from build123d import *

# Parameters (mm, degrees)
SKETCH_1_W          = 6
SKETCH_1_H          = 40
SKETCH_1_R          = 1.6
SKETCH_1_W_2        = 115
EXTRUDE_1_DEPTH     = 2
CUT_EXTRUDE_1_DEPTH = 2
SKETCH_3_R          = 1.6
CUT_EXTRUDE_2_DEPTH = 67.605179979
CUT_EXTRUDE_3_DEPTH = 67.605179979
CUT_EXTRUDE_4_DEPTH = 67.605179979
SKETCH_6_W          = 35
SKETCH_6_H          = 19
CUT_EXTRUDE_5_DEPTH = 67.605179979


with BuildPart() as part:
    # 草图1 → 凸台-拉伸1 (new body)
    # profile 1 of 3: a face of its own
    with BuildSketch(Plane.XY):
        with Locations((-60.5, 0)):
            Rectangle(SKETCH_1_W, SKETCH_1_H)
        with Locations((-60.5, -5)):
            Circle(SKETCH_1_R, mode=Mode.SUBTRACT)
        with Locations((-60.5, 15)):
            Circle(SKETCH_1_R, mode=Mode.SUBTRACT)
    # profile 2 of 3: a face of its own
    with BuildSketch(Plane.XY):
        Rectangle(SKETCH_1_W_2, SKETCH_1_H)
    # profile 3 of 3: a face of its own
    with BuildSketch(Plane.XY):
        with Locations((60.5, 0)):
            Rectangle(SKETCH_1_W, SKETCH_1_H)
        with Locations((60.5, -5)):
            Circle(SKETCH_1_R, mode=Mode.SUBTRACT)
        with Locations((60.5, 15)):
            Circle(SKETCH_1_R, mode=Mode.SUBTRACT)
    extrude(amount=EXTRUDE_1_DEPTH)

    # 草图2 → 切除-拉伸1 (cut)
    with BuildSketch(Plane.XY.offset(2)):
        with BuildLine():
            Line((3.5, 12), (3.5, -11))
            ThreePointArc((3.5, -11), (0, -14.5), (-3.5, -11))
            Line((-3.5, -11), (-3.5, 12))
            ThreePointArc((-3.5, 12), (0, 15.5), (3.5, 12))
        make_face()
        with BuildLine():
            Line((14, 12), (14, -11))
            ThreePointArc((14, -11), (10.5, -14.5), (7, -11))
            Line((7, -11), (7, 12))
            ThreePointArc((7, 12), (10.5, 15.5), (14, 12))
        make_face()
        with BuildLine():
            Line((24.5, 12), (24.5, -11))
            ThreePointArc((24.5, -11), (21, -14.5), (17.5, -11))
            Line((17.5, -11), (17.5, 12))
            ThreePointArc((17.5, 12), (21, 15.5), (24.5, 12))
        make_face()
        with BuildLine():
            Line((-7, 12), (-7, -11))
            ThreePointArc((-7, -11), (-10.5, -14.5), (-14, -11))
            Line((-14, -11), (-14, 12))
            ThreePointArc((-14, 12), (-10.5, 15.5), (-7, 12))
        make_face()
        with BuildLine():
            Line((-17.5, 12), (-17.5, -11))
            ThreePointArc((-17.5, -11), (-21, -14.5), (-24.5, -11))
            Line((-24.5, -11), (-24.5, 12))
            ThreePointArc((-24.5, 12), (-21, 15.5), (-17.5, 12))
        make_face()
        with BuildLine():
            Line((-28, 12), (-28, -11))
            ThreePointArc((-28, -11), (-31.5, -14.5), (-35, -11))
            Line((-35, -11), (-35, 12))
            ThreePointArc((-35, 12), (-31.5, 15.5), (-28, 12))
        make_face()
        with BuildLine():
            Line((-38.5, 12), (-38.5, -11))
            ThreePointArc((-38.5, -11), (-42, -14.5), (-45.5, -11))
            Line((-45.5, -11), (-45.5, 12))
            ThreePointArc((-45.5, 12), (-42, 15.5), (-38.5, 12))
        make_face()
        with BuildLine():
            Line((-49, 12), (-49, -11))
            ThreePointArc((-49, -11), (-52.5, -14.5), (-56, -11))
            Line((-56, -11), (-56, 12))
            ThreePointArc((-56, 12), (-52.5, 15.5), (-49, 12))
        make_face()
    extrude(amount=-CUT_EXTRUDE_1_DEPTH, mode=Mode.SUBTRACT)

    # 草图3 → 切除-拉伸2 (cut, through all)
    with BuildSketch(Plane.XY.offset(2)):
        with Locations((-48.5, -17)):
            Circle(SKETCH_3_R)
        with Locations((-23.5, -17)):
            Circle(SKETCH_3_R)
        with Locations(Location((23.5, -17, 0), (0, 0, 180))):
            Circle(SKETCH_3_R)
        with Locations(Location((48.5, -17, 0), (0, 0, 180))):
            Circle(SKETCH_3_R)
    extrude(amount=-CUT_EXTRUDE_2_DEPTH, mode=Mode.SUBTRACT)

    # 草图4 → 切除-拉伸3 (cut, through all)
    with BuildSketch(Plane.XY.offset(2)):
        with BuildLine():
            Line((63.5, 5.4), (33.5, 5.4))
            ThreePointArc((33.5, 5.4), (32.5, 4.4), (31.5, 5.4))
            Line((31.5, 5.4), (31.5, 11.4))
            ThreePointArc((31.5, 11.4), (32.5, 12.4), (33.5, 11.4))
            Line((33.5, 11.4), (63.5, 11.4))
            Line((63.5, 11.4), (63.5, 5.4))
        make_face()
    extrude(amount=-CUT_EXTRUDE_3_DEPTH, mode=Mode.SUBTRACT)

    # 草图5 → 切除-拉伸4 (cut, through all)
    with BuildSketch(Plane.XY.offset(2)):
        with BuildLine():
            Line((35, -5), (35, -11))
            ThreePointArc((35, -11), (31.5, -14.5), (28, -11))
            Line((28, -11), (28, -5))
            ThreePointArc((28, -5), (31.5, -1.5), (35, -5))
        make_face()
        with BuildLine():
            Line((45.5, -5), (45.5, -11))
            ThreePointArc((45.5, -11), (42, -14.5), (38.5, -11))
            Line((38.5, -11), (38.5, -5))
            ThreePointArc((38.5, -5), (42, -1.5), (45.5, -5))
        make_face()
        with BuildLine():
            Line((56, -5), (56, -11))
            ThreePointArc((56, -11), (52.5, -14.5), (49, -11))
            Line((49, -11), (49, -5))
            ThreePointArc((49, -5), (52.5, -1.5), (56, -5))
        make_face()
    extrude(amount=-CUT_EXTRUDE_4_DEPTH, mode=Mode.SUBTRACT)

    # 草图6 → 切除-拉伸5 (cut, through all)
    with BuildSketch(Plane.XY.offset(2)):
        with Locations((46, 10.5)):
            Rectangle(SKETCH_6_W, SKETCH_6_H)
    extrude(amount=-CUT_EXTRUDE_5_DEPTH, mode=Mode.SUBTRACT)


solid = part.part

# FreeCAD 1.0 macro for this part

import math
import FreeCAD as App
import Part
import Sketcher
from FreeCAD import Vector
Q = App.Units.Quantity


def add_polygon(sketch, points):
    """Adds a closed chain of lines whose ends are joined by coincident constraints."""
    first, n = sketch.GeometryCount, len(points)
    for a, b in zip(points, points[1:] + points[:1]):
        sketch.addGeometry(Part.LineSegment(App.Vector(*a, 0), App.Vector(*b, 0)), False)
    for i in range(n):
        sketch.addConstraint(Sketcher.Constraint("Coincident", first + i, 2, first + (i + 1) % n, 1))

doc = App.newDocument("Part")
body = doc.addObject("PartDesign::Body", "Body")

# Sketch on XY plane
sketch1 = body.newObject("Sketcher::SketchObject", "Sketch")
sketch1.AttachmentSupport = (doc.getObject("XY_Plane"), [""])
sketch1.MapMode = "FlatFace"
add_polygon(sketch1, [(-63.5, 20), (-63.5, -20), (63.5, -20), (63.5, 20)])  # lines 0-3
sketch1.addGeometry(Part.Circle(Vector(-60.5, -5, 0), Vector(0, 0, 1), 1.6), False)  # 4
sketch1.addGeometry(Part.Circle(Vector(-60.5, 15, 0), Vector(0, 0, 1), 1.6), False)  # 5
sketch1.addGeometry(Part.Circle(Vector(60.5, 15, 0), Vector(0, 0, 1), 1.6), False)  # 6
sketch1.addGeometry(Part.Circle(Vector(60.5, -5, 0), Vector(0, 0, 1), 1.6), False)  # 7
sketch1.addConstraint([
    Sketcher.Constraint("Vertical", 0),
    Sketcher.Constraint("Horizontal", 1),
    Sketcher.Constraint("Vertical", 2),
    Sketcher.Constraint("Horizontal", 3),
    Sketcher.Constraint("Equal", 4, 5),
    Sketcher.Constraint("Equal", 5, 6),
    Sketcher.Constraint("Equal", 6, 7),
    Sketcher.Constraint("Symmetric", 0, 2, 2, 2, -1, 1),
    Sketcher.Constraint("Symmetric", 5, 3, 6, 3, -2),
    Sketcher.Constraint("Symmetric", 4, 3, 7, 3, -2),
    Sketcher.Constraint("Vertical", 4, 3, 5, 3),
    Sketcher.Constraint("Diameter", 4, Q("3.2 mm")),
    Sketcher.Constraint("DistanceX", 1, 1, 1, 2, Q("127 mm")),
    Sketcher.Constraint("DistanceY", 0, 2, 0, 1, Q("40 mm")),
    Sketcher.Constraint("DistanceY", 4, 3, -1, 1, Q("5 mm")),
    Sketcher.Constraint("DistanceY", -1, 1, 5, 3, Q("15 mm")),
    Sketcher.Constraint("DistanceX", 5, 3, 6, 3, Q("121 mm")),
])
pad1 = body.newObject("PartDesign::Pad", "Pad")
pad1.Profile = sketch1
pad1.Length = 2

# Sketch on XY plane
sketch2 = body.newObject("Sketcher::SketchObject", "Sketch001")
sketch2.AttachmentSupport = (doc.getObject("XY_Plane"), [""])
sketch2.MapMode = "FlatFace"
sketch2.AttachmentOffset = App.Placement(Vector(0, 0, 2), App.Rotation())
sketch2.addGeometry([
    Part.LineSegment(Vector(3.5, -11, 0), Vector(3.5, 12, 0)),  # 0
    Part.ArcOfCircle(Part.Circle(Vector(0, 12, 0), Vector(0, 0, 1), 3.5), math.radians(0), math.radians(180)),  # 1
    Part.LineSegment(Vector(-3.5, 12, 0), Vector(-3.5, -11, 0)),  # 2
    Part.ArcOfCircle(Part.Circle(Vector(0, -11, 0), Vector(0, 0, 1), 3.5), math.radians(180), math.radians(360)),  # 3
    Part.LineSegment(Vector(14, -11, 0), Vector(14, 12, 0)),  # 4
    Part.ArcOfCircle(Part.Circle(Vector(10.5, 12, 0), Vector(0, 0, 1), 3.5), math.radians(0), math.radians(180)),  # 5
    Part.LineSegment(Vector(7, 12, 0), Vector(7, -11, 0)),  # 6
    Part.ArcOfCircle(Part.Circle(Vector(10.5, -11, 0), Vector(0, 0, 1), 3.5), math.radians(180), math.radians(360)),  # 7
    Part.LineSegment(Vector(24.5, -11, 0), Vector(24.5, 12, 0)),  # 8
    Part.ArcOfCircle(Part.Circle(Vector(21, 12, 0), Vector(0, 0, 1), 3.5), math.radians(0), math.radians(180)),  # 9
    Part.LineSegment(Vector(17.5, 12, 0), Vector(17.5, -11, 0)),  # 10
    Part.ArcOfCircle(Part.Circle(Vector(21, -11, 0), Vector(0, 0, 1), 3.5), math.radians(180), math.radians(360)),  # 11
    Part.LineSegment(Vector(-7, -11, 0), Vector(-7, 12, 0)),  # 12
    Part.ArcOfCircle(Part.Circle(Vector(-10.5, 12, 0), Vector(0, 0, 1), 3.5), math.radians(0), math.radians(180)),  # 13
    Part.LineSegment(Vector(-14, 12, 0), Vector(-14, -11, 0)),  # 14
    Part.ArcOfCircle(Part.Circle(Vector(-10.5, -11, 0), Vector(0, 0, 1), 3.5), math.radians(180), math.radians(360)),  # 15
    Part.LineSegment(Vector(-17.5, -11, 0), Vector(-17.5, 12, 0)),  # 16
    Part.ArcOfCircle(Part.Circle(Vector(-21, 12, 0), Vector(0, 0, 1), 3.5), math.radians(0), math.radians(180)),  # 17
    Part.LineSegment(Vector(-24.5, 12, 0), Vector(-24.5, -11, 0)),  # 18
    Part.ArcOfCircle(Part.Circle(Vector(-21, -11, 0), Vector(0, 0, 1), 3.5), math.radians(180), math.radians(360)),  # 19
    Part.LineSegment(Vector(-28, -11, 0), Vector(-28, 12, 0)),  # 20
    Part.ArcOfCircle(Part.Circle(Vector(-31.5, 12, 0), Vector(0, 0, 1), 3.5), math.radians(0), math.radians(180)),  # 21
    Part.LineSegment(Vector(-35, 12, 0), Vector(-35, -11, 0)),  # 22
    Part.ArcOfCircle(Part.Circle(Vector(-31.5, -11, 0), Vector(0, 0, 1), 3.5), math.radians(180), math.radians(360)),  # 23
    Part.LineSegment(Vector(-38.5, -11, 0), Vector(-38.5, 12, 0)),  # 24
    Part.ArcOfCircle(Part.Circle(Vector(-42, 12, 0), Vector(0, 0, 1), 3.5), math.radians(0), math.radians(180)),  # 25
    Part.LineSegment(Vector(-45.5, 12, 0), Vector(-45.5, -11, 0)),  # 26
    Part.ArcOfCircle(Part.Circle(Vector(-42, -11, 0), Vector(0, 0, 1), 3.5), math.radians(180), math.radians(360)),  # 27
    Part.LineSegment(Vector(-49, -11, 0), Vector(-49, 12, 0)),  # 28
    Part.ArcOfCircle(Part.Circle(Vector(-52.5, 12, 0), Vector(0, 0, 1), 3.5), math.radians(0), math.radians(180)),  # 29
    Part.LineSegment(Vector(-56, 12, 0), Vector(-56, -11, 0)),  # 30
    Part.ArcOfCircle(Part.Circle(Vector(-52.5, -11, 0), Vector(0, 0, 1), 3.5), math.radians(180), math.radians(360)),  # 31
], False)
sketch2.addConstraint([
    Sketcher.Constraint("Tangent", 0, 2, 1, 1),
    Sketcher.Constraint("Tangent", 1, 2, 2, 1),
    Sketcher.Constraint("Tangent", 2, 2, 3, 1),
    Sketcher.Constraint("Tangent", 3, 2, 0, 1),
    Sketcher.Constraint("Tangent", 4, 2, 5, 1),
    Sketcher.Constraint("Tangent", 5, 2, 6, 1),
    Sketcher.Constraint("Tangent", 6, 2, 7, 1),
    Sketcher.Constraint("Tangent", 7, 2, 4, 1),
    Sketcher.Constraint("Tangent", 8, 2, 9, 1),
    Sketcher.Constraint("Tangent", 9, 2, 10, 1),
    Sketcher.Constraint("Tangent", 10, 2, 11, 1),
    Sketcher.Constraint("Tangent", 11, 2, 8, 1),
    Sketcher.Constraint("Tangent", 12, 2, 13, 1),
    Sketcher.Constraint("Tangent", 13, 2, 14, 1),
    Sketcher.Constraint("Tangent", 14, 2, 15, 1),
    Sketcher.Constraint("Tangent", 15, 2, 12, 1),
    Sketcher.Constraint("Tangent", 16, 2, 17, 1),
    Sketcher.Constraint("Tangent", 17, 2, 18, 1),
    Sketcher.Constraint("Tangent", 18, 2, 19, 1),
    Sketcher.Constraint("Tangent", 19, 2, 16, 1),
    Sketcher.Constraint("Tangent", 20, 2, 21, 1),
    Sketcher.Constraint("Tangent", 21, 2, 22, 1),
    Sketcher.Constraint("Tangent", 22, 2, 23, 1),
    Sketcher.Constraint("Tangent", 23, 2, 20, 1),
    Sketcher.Constraint("Tangent", 24, 2, 25, 1),
    Sketcher.Constraint("Tangent", 25, 2, 26, 1),
    Sketcher.Constraint("Tangent", 26, 2, 27, 1),
    Sketcher.Constraint("Tangent", 27, 2, 24, 1),
    Sketcher.Constraint("Tangent", 28, 2, 29, 1),
    Sketcher.Constraint("Tangent", 29, 2, 30, 1),
    Sketcher.Constraint("Tangent", 30, 2, 31, 1),
    Sketcher.Constraint("Tangent", 31, 2, 28, 1),
    Sketcher.Constraint("Vertical", 0),
    Sketcher.Constraint("Vertical", 2),
    Sketcher.Constraint("Vertical", 4),
    Sketcher.Constraint("Vertical", 6),
    Sketcher.Constraint("Vertical", 8),
    Sketcher.Constraint("Vertical", 10),
    Sketcher.Constraint("Vertical", 12),
    Sketcher.Constraint("Vertical", 14),
    Sketcher.Constraint("Vertical", 16),
    Sketcher.Constraint("Vertical", 18),
    Sketcher.Constraint("Vertical", 20),
    Sketcher.Constraint("Vertical", 22),
    Sketcher.Constraint("Vertical", 24),
    Sketcher.Constraint("Vertical", 26),
    Sketcher.Constraint("Vertical", 28),
    Sketcher.Constraint("Vertical", 30),
    Sketcher.Constraint("Equal", 3, 5),
    Sketcher.Constraint("Equal", 7, 9),
    Sketcher.Constraint("Equal", 11, 13),
    Sketcher.Constraint("Equal", 15, 17),
    Sketcher.Constraint("Equal", 19, 21),
    Sketcher.Constraint("Equal", 23, 25),
    Sketcher.Constraint("Equal", 27, 29),
    Sketcher.Constraint("Symmetric", 5, 3, 13, 3, -2),
    Sketcher.Constraint("Symmetric", 9, 3, 17, 3, -2),
    Sketcher.Constraint("PointOnObject", 1, 3, -2),
    Sketcher.Constraint("Horizontal", 1, 3, 5, 3),
    Sketcher.Constraint("Horizontal", 3, 3, 7, 3),
    Sketcher.Constraint("Horizontal", 5, 3, 9, 3),
    Sketcher.Constraint("Horizontal", 7, 3, 11, 3),
    Sketcher.Constraint("Horizontal", 11, 3, 15, 3),
    Sketcher.Constraint("Horizontal", 15, 3, 19, 3),
    Sketcher.Constraint("Horizontal", 17, 3, 21, 3),
    Sketcher.Constraint("Horizontal", 19, 3, 23, 3),
    Sketcher.Constraint("Horizontal", 21, 3, 25, 3),
    Sketcher.Constraint("Horizontal", 23, 3, 27, 3),
    Sketcher.Constraint("Horizontal", 25, 3, 29, 3),
    Sketcher.Constraint("Horizontal", 27, 3, 31, 3),
    Sketcher.Constraint("Radius", 1, Q("3.5 mm")),
    Sketcher.Constraint("DistanceY", 0, 1, 0, 2, Q("23 mm")),
    Sketcher.Constraint("DistanceY", -1, 1, 1, 3, Q("12 mm")),
    Sketcher.Constraint("DistanceX", -1, 1, 9, 3, Q("21 mm")),
    Sketcher.Constraint("DistanceX", 25, 3, -1, 1, Q("42 mm")),
    Sketcher.Constraint("DistanceX", -1, 1, 4, 2, Q("14 mm")),
    Sketcher.Constraint("DistanceX", 20, 2, -1, 1, Q("28 mm")),
    Sketcher.Constraint("DistanceX", 28, 2, -1, 1, Q("49 mm")),
])
pocket1 = body.newObject("PartDesign::Pocket", "Pocket")
pocket1.Profile = sketch2
pocket1.Length = 2

# Sketch on XY plane
sketch3 = body.newObject("Sketcher::SketchObject", "Sketch002")
sketch3.AttachmentSupport = (doc.getObject("XY_Plane"), [""])
sketch3.MapMode = "FlatFace"
sketch3.AttachmentOffset = App.Placement(Vector(0, 0, 2), App.Rotation())
sketch3.addGeometry([
    Part.Circle(Vector(-48.5, -17, 0), Vector(0, 0, 1), 1.6),
    Part.Circle(Vector(-23.5, -17, 0), Vector(0, 0, 1), 1.6),
    Part.Circle(Vector(23.5, -17, 0), Vector(0, 0, 1), 1.6),
    Part.Circle(Vector(48.5, -17, 0), Vector(0, 0, 1), 1.6),
], False)
sketch3.addConstraint([
    Sketcher.Constraint("Equal", 0, 1),
    Sketcher.Constraint("Equal", 1, 2),
    Sketcher.Constraint("Equal", 2, 3),
    Sketcher.Constraint("Symmetric", 1, 3, 2, 3, -2),
    Sketcher.Constraint("Symmetric", 0, 3, 3, 3, -2),
    Sketcher.Constraint("Horizontal", 0, 3, 1, 3),
    Sketcher.Constraint("Diameter", 0, Q("3.2 mm")),
    Sketcher.Constraint("DistanceY", 0, 3, -1, 1, Q("17 mm")),
    Sketcher.Constraint("DistanceX", 0, 3, 1, 3, Q("25 mm")),
    Sketcher.Constraint("DistanceX", 1, 3, 2, 3, Q("47 mm")),
])
pocket2 = body.newObject("PartDesign::Pocket", "Pocket001")
pocket2.Profile = sketch3
pocket2.Type = "ThroughAll"

# Sketch on XY plane
sketch4 = body.newObject("Sketcher::SketchObject", "Sketch003")
sketch4.AttachmentSupport = (doc.getObject("XY_Plane"), [""])
sketch4.MapMode = "FlatFace"
sketch4.AttachmentOffset = App.Placement(Vector(0, 0, 2), App.Rotation())
sketch4.addGeometry([
    Part.LineSegment(Vector(33.5, 5.4, 0), Vector(63.5, 5.4, 0)),  # 0
    Part.LineSegment(Vector(63.5, 5.4, 0), Vector(63.5, 11.4, 0)),  # 1
    Part.LineSegment(Vector(63.5, 11.4, 0), Vector(33.5, 11.4, 0)),  # 2
    Part.ArcOfCircle(Part.Circle(Vector(32.5, 11.4, 0), Vector(0, 0, 1), 1), math.radians(0), math.radians(180)),  # 3
    Part.LineSegment(Vector(31.5, 11.4, 0), Vector(31.5, 5.4, 0)),  # 4
    Part.ArcOfCircle(Part.Circle(Vector(32.5, 5.4, 0), Vector(0, 0, 1), 1), math.radians(180), math.radians(360)),  # 5
], False)
sketch4.addConstraint([
    Sketcher.Constraint("Coincident", 0, 2, 1, 1),
    Sketcher.Constraint("Coincident", 1, 2, 2, 1),
    Sketcher.Constraint("Coincident", 2, 2, 3, 1),
    Sketcher.Constraint("Tangent", 3, 2, 4, 1),
    Sketcher.Constraint("Tangent", 4, 2, 5, 1),
    Sketcher.Constraint("Coincident", 5, 2, 0, 1),
    Sketcher.Constraint("Horizontal", 0),
    Sketcher.Constraint("Vertical", 1),
    Sketcher.Constraint("Horizontal", 2),
    Sketcher.Constraint("Vertical", 4),
    Sketcher.Constraint("Equal", 3, 5),
    Sketcher.Constraint("Horizontal", 5, 3, 0, 2),
    Sketcher.Constraint("Horizontal", 3, 3, 1, 2),
    Sketcher.Constraint("Radius", 3, Q("1 mm")),
    Sketcher.Constraint("DistanceX", 0, 1, 0, 2, Q("30 mm")),
    Sketcher.Constraint("DistanceY", 1, 1, 1, 2, Q("6 mm")),
    Sketcher.Constraint("DistanceX", -1, 1, 3, 3, Q("32.5 mm")),
    Sketcher.Constraint("DistanceY", -1, 1, 3, 3, Q("11.4 mm")),
])
pocket3 = body.newObject("PartDesign::Pocket", "Pocket002")
pocket3.Profile = sketch4
pocket3.Type = "ThroughAll"

# Sketch on XY plane
sketch5 = body.newObject("Sketcher::SketchObject", "Sketch004")
sketch5.AttachmentSupport = (doc.getObject("XY_Plane"), [""])
sketch5.MapMode = "FlatFace"
sketch5.AttachmentOffset = App.Placement(Vector(0, 0, 2), App.Rotation())
sketch5.addGeometry([
    Part.LineSegment(Vector(35, -11, 0), Vector(35, -5, 0)),  # 0
    Part.ArcOfCircle(Part.Circle(Vector(31.5, -5, 0), Vector(0, 0, 1), 3.5), math.radians(0), math.radians(180)),  # 1
    Part.LineSegment(Vector(28, -5, 0), Vector(28, -11, 0)),  # 2
    Part.ArcOfCircle(Part.Circle(Vector(31.5, -11, 0), Vector(0, 0, 1), 3.5), math.radians(180), math.radians(360)),  # 3
    Part.LineSegment(Vector(45.5, -11, 0), Vector(45.5, -5, 0)),  # 4
    Part.ArcOfCircle(Part.Circle(Vector(42, -5, 0), Vector(0, 0, 1), 3.5), math.radians(0), math.radians(180)),  # 5
    Part.LineSegment(Vector(38.5, -5, 0), Vector(38.5, -11, 0)),  # 6
    Part.ArcOfCircle(Part.Circle(Vector(42, -11, 0), Vector(0, 0, 1), 3.5), math.radians(180), math.radians(360)),  # 7
    Part.LineSegment(Vector(56, -11, 0), Vector(56, -5, 0)),  # 8
    Part.ArcOfCircle(Part.Circle(Vector(52.5, -5, 0), Vector(0, 0, 1), 3.5), math.radians(0), math.radians(180)),  # 9
    Part.LineSegment(Vector(49, -5, 0), Vector(49, -11, 0)),  # 10
    Part.ArcOfCircle(Part.Circle(Vector(52.5, -11, 0), Vector(0, 0, 1), 3.5), math.radians(180), math.radians(360)),  # 11
], False)
sketch5.addConstraint([
    Sketcher.Constraint("Tangent", 0, 2, 1, 1),
    Sketcher.Constraint("Tangent", 1, 2, 2, 1),
    Sketcher.Constraint("Tangent", 2, 2, 3, 1),
    Sketcher.Constraint("Tangent", 3, 2, 0, 1),
    Sketcher.Constraint("Tangent", 4, 2, 5, 1),
    Sketcher.Constraint("Tangent", 5, 2, 6, 1),
    Sketcher.Constraint("Tangent", 6, 2, 7, 1),
    Sketcher.Constraint("Tangent", 7, 2, 4, 1),
    Sketcher.Constraint("Tangent", 8, 2, 9, 1),
    Sketcher.Constraint("Tangent", 9, 2, 10, 1),
    Sketcher.Constraint("Tangent", 10, 2, 11, 1),
    Sketcher.Constraint("Tangent", 11, 2, 8, 1),
    Sketcher.Constraint("Vertical", 0),
    Sketcher.Constraint("Vertical", 2),
    Sketcher.Constraint("Vertical", 4),
    Sketcher.Constraint("Vertical", 6),
    Sketcher.Constraint("Vertical", 8),
    Sketcher.Constraint("Vertical", 10),
    Sketcher.Constraint("Equal", 3, 5),
    Sketcher.Constraint("Equal", 7, 9),
    Sketcher.Constraint("Horizontal", 1, 3, 5, 3),
    Sketcher.Constraint("Horizontal", 3, 3, 7, 3),
    Sketcher.Constraint("Horizontal", 5, 3, 9, 3),
    Sketcher.Constraint("Horizontal", 7, 3, 11, 3),
    Sketcher.Constraint("Radius", 1, Q("3.5 mm")),
    Sketcher.Constraint("DistanceY", 0, 1, 0, 2, Q("6 mm")),
    Sketcher.Constraint("DistanceY", 1, 3, -1, 1, Q("5 mm")),
    Sketcher.Constraint("DistanceX", -1, 1, 5, 3, Q("42 mm")),
    Sketcher.Constraint("DistanceX", -1, 1, 0, 2, Q("35 mm")),
    Sketcher.Constraint("DistanceX", -1, 1, 8, 2, Q("56 mm")),
])
pocket4 = body.newObject("PartDesign::Pocket", "Pocket003")
pocket4.Profile = sketch5
pocket4.Type = "ThroughAll"

# Sketch on XY plane
sketch6 = body.newObject("Sketcher::SketchObject", "Sketch005")
sketch6.AttachmentSupport = (doc.getObject("XY_Plane"), [""])
sketch6.MapMode = "FlatFace"
sketch6.AttachmentOffset = App.Placement(Vector(0, 0, 2), App.Rotation())
add_polygon(sketch6, [(28, 20), (28, 1), (64, 1), (64, 20)])  # lines 0-3
sketch6.addConstraint([
    Sketcher.Constraint("Vertical", 0),
    Sketcher.Constraint("Horizontal", 1),
    Sketcher.Constraint("Vertical", 2),
    Sketcher.Constraint("Horizontal", 3),
    Sketcher.Constraint("DistanceX", 1, 1, 1, 2, Q("35 mm")),
    Sketcher.Constraint("DistanceY", 0, 2, 0, 1, Q("19 mm")),
    Sketcher.Constraint("DistanceY", -1, 1, 0, 2, Q("1 mm")),
    Sketcher.Constraint("DistanceX", -1, 1, 0, 2, Q("28.5 mm")),
])
pocket5 = body.newObject("PartDesign::Pocket", "Pocket004")
pocket5.Profile = sketch6
pocket5.Type = "ThroughAll"

doc.recompute()
